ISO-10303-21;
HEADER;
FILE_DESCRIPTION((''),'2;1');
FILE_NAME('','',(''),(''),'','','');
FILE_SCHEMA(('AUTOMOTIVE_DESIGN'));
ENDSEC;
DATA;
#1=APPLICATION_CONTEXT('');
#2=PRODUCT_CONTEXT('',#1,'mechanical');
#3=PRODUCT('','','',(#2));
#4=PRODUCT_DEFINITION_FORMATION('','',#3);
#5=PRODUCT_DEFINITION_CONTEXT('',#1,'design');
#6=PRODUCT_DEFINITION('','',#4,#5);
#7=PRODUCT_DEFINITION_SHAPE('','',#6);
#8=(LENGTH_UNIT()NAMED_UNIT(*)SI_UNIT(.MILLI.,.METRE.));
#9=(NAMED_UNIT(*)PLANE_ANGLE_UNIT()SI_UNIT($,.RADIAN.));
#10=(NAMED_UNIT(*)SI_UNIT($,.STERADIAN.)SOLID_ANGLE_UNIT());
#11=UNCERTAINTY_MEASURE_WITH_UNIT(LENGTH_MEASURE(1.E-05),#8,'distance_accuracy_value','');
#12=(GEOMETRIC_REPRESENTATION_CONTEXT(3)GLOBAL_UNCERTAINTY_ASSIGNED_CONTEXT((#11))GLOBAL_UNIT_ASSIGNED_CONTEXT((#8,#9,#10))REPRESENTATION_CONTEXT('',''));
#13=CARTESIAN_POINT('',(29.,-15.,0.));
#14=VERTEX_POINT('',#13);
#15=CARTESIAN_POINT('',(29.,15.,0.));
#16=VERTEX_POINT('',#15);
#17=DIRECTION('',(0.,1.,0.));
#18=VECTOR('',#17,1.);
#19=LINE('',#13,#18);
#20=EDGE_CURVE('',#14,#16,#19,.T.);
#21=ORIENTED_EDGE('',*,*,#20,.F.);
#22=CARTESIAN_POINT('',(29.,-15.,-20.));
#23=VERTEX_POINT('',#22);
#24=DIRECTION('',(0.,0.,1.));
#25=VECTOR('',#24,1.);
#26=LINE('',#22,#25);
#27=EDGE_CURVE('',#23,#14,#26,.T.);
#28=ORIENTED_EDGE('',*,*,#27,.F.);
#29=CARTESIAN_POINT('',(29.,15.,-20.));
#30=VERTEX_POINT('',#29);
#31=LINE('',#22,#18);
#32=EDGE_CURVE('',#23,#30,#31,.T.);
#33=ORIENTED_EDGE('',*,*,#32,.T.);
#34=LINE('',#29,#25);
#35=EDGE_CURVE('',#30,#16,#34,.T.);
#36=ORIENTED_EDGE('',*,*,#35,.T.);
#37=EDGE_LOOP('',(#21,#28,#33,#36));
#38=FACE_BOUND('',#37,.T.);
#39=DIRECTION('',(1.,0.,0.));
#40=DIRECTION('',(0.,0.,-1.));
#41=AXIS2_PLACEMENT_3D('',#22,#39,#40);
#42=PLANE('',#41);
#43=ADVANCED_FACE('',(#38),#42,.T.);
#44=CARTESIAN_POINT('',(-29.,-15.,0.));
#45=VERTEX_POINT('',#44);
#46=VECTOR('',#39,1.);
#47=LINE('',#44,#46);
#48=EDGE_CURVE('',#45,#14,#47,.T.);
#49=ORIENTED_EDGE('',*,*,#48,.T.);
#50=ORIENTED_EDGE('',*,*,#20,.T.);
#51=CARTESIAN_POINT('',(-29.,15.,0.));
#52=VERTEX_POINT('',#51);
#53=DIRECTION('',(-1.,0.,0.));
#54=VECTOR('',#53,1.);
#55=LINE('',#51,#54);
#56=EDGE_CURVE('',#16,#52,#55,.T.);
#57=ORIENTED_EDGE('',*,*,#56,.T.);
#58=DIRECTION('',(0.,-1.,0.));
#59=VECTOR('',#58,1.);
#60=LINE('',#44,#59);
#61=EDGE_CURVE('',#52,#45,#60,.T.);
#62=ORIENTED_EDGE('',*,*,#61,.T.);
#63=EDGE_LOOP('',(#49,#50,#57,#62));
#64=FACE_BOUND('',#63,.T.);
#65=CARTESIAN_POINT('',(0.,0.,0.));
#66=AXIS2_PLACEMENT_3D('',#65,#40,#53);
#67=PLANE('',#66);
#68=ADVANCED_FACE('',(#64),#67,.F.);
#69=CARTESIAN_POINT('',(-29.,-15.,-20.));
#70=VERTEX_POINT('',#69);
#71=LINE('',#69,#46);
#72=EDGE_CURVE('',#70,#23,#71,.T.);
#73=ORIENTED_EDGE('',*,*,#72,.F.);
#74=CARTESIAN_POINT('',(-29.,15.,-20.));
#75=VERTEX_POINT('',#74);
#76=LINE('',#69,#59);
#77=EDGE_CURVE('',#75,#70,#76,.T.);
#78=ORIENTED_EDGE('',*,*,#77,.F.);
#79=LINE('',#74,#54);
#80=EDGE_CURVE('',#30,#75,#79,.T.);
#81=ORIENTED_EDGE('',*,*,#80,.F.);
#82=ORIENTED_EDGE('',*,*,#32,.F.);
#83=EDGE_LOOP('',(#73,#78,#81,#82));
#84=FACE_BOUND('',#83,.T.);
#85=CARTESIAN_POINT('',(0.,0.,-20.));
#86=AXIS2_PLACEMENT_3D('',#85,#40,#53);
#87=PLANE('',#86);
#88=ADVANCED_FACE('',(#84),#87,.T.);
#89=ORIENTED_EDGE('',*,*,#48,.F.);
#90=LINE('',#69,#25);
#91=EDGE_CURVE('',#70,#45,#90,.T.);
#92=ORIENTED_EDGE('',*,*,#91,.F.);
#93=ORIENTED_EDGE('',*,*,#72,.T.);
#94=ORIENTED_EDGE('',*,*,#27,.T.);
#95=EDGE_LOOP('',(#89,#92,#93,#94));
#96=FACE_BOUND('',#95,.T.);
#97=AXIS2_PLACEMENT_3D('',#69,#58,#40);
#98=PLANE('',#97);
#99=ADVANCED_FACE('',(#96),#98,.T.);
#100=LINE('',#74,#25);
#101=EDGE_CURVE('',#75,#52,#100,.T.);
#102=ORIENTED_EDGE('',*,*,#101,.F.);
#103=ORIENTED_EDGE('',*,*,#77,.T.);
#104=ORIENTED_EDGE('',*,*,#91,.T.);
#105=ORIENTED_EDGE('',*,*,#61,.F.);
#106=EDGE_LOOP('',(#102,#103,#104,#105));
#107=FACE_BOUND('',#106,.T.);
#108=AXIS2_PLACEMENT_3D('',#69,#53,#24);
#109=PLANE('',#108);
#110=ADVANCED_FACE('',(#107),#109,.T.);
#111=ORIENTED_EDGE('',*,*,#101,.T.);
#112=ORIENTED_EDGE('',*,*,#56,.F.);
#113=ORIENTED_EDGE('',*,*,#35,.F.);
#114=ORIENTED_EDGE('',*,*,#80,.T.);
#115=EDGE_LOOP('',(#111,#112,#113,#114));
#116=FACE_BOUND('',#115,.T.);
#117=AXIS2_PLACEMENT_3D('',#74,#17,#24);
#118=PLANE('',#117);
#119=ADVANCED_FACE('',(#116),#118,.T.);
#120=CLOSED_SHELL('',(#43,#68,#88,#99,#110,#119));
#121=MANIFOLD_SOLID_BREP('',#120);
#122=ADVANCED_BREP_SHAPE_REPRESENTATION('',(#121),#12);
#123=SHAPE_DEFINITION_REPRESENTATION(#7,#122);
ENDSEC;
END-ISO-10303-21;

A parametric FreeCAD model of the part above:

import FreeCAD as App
import Part
import Sketcher
from FreeCAD import Vector

doc = App.newDocument("Part")
params = doc.addObject("Spreadsheet::Sheet", "Params")
for row, (alias, value) in enumerate([
    ("sketch1_width", "58 mm"),
    ("sketch1_height", "30 mm"),
    ("pad1_length", "20 mm"),
], start=1):
    params.set(f"A{row}", alias)
    params.set(f"B{row}", "=" + value)
    params.setAlias(f"B{row}", alias)

body = doc.addObject("PartDesign::Body", "Body")

sketch1 = body.newObject("Sketcher::SketchObject", "Sketch")
sketch1.AttachmentSupport = (doc.getObject("XY_Plane"), [""])
sketch1.MapMode = "FlatFace"
sketch1.addGeometry([
    Part.LineSegment(Vector(-29, 15, 0), Vector(-29, -15, 0)),
    Part.LineSegment(Vector(-29, -15, 0), Vector(29, -15, 0)),
    Part.LineSegment(Vector(29, -15, 0), Vector(29, 15, 0)),
    Part.LineSegment(Vector(29, 15, 0), Vector(-29, 15, 0)),
], False)
sketch1.addConstraint([
    Sketcher.Constraint("Coincident", 0, 2, 1, 1),
    Sketcher.Constraint("Coincident", 1, 2, 2, 1),
    Sketcher.Constraint("Coincident", 2, 2, 3, 1),
    Sketcher.Constraint("Coincident", 3, 2, 0, 1),
    Sketcher.Constraint("Vertical", 0),
    Sketcher.Constraint("Horizontal", 1),
    Sketcher.Constraint("Vertical", 2),
    Sketcher.Constraint("Horizontal", 3),
    Sketcher.Constraint("Symmetric", 0, 2, 2, 2, -1, 1),
    Sketcher.Constraint("DistanceX", 1, 1, 1, 2, 58.0),
    Sketcher.Constraint("DistanceY", 0, 2, 0, 1, 30.0),
])
sketch1.setExpression("Constraints[9]", "Params.sketch1_width")
sketch1.setExpression("Constraints[10]", "Params.sketch1_height")
pad1 = body.newObject("PartDesign::Pad", "Pad")
pad1.Profile = sketch1
pad1.setExpression("Length", "Params.pad1_length")
pad1.Reversed = True

doc.recompute()
